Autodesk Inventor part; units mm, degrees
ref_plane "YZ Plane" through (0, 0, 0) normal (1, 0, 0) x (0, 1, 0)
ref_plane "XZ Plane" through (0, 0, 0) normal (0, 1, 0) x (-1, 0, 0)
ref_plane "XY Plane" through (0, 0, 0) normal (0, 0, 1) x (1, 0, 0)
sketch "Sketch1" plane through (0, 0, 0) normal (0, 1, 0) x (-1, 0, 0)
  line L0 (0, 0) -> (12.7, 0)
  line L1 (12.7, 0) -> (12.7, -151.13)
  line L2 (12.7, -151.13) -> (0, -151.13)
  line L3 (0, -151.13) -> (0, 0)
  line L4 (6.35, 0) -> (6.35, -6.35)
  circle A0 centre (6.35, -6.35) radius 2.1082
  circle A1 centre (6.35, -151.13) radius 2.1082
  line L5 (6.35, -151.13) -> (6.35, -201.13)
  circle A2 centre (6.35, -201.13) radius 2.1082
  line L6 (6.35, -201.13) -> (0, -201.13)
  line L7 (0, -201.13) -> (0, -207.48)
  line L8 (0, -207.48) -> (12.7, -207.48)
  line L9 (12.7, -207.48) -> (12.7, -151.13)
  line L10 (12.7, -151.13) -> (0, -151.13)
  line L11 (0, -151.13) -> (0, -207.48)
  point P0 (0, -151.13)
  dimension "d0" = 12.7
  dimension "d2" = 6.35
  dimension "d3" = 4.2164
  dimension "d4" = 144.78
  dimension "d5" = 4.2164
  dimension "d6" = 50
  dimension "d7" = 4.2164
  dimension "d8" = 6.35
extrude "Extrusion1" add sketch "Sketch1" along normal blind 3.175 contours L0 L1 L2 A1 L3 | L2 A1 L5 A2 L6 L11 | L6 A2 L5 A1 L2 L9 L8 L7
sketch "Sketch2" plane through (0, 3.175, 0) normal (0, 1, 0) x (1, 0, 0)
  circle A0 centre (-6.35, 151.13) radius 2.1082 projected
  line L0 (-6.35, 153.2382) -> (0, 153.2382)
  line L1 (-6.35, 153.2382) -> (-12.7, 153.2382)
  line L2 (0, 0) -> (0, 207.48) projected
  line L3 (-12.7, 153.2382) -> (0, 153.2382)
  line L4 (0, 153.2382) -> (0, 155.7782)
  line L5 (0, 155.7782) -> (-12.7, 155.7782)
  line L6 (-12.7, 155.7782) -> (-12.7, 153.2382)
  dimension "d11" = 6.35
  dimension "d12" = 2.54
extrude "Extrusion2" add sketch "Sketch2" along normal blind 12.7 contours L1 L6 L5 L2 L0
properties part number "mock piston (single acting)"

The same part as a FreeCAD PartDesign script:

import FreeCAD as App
import Part
import Sketcher
from FreeCAD import Vector
Q = App.Units.Quantity

doc = App.newDocument("Part")
params = doc.addObject("Spreadsheet::Sheet", "Params")
for row, (alias, value) in enumerate([
    ("sketch1_diameter", "0.166 in"),
    ("sketch1_width", "0.5 in"),
    ("pad1_length", "0.125 in"),
    ("sketch2_height", "0.1 in"),
    ("sketch2_width", "0.5 in"),
    ("pad2_length", "0.5 in"),
], start=1):
    params.set(f"A{row}", alias)
    params.set(f"B{row}", "=" + value)
    params.setAlias(f"B{row}", alias)

body = doc.addObject("PartDesign::Body", "Body")

sketch1 = doc.addObject("Sketcher::SketchObject", "Sketch")
body.addObject(sketch1)
sketch1.AttachmentSupport = (doc.XZ_Plane, [""])
sketch1.MapMode = "FlatFace"
sketch1.addGeometry([
    Part.LineSegment(Vector(-6.3, 0, 0), Vector(0, 0, 0)),
    Part.LineSegment(Vector(0, 0, 0), Vector(0, -207.5, 0)),
    Part.LineSegment(Vector(0, -207.5, 0), Vector(-12.7, -207.5, 0)),
    Part.LineSegment(Vector(-12.7, -207.5, 0), Vector(-12.7, 0, 0)),
    Part.LineSegment(Vector(-12.7, 0, 0), Vector(-6.3, 0, 0)),
    Part.Circle(Vector(-6.3, -151.1, 0), Vector(0, 0, 1), 2.1),
    Part.Circle(Vector(-6.3, -6.3, 0), Vector(0, 0, 1), 2.1),
    Part.Circle(Vector(-6.3, -201.1, 0), Vector(0, 0, 1), 2.1),
], False)
sketch1.addConstraint([
    Sketcher.Constraint("Coincident", 0, 2, 1, 1),
    Sketcher.Constraint("Coincident", 1, 2, 2, 1),
    Sketcher.Constraint("Coincident", 2, 2, 3, 1),
    Sketcher.Constraint("Coincident", 3, 2, 4, 1),
    Sketcher.Constraint("Coincident", 4, 2, 0, 1),
    Sketcher.Constraint("Horizontal", 0),
    Sketcher.Constraint("Vertical", 1),
    Sketcher.Constraint("Horizontal", 2),
    Sketcher.Constraint("Vertical", 3),
    Sketcher.Constraint("Horizontal", 4),
    Sketcher.Constraint("Coincident", 0, 2, -1, 1),
    Sketcher.Constraint("Equal", 5, 6),
    Sketcher.Constraint("Equal", 6, 7),
    Sketcher.Constraint("Vertical", 5, 3, 6, 3),
    Sketcher.Constraint("Vertical", 6, 3, 7, 3),
    Sketcher.Constraint("Vertical", 7, 3, 4, 2),
    Sketcher.Constraint("Equal", 0, 4),
    Sketcher.Constraint("Diameter", 5, Q("0.166 in")),
    Sketcher.Constraint("DistanceX", 2, 2, 2, 1, Q("0.5 in")),
    Sketcher.Constraint("DistanceY", 5, 3, 6, 3, Q("5.7 in")),
    Sketcher.Constraint("DistanceY", 6, 3, -1, 1, Q("0.25 in")),
    Sketcher.Constraint("DistanceY", 1, 2, 7, 3, Q("0.25 in")),
    Sketcher.Constraint("DistanceY", 7, 3, 5, 3, Q("1.9685 in")),
])
sketch1.setExpression("Constraints[17]", "Params.sketch1_diameter")
sketch1.setExpression("Constraints[18]", "Params.sketch1_width")
pad1 = doc.addObject("PartDesign::Pad", "Pad")
body.addObject(pad1)
pad1.Profile = sketch1
pad1.setExpression("Length", "Params.pad1_length")
pad1.Reversed = True

sketch2 = doc.addObject("Sketcher::SketchObject", "Sketch001")
body.addObject(sketch2)
sketch2.AttachmentSupport = (doc.XZ_Plane, [""])
sketch2.MapMode = "FlatFace"
sketch2.AttachmentOffset = App.Placement(Vector(0, 0, -0.125 * 25.4), App.Rotation())
sketch2.addGeometry([
    Part.LineSegment(Vector(-12.7, -153.2, 0), Vector(0, -153.2, 0)),
    Part.LineSegment(Vector(0, -153.2, 0), Vector(0, -155.8, 0)),
    Part.LineSegment(Vector(0, -155.8, 0), Vector(-12.7, -155.8, 0)),
    Part.LineSegment(Vector(-12.7, -155.8, 0), Vector(-12.7, -153.2, 0)),
], False)
sketch2.addConstraint([
    Sketcher.Constraint("Coincident", 0, 2, 1, 1),
    Sketcher.Constraint("Coincident", 1, 2, 2, 1),
    Sketcher.Constraint("Coincident", 2, 2, 3, 1),
    Sketcher.Constraint("Coincident", 3, 2, 0, 1),
    Sketcher.Constraint("Horizontal", 0),
    Sketcher.Constraint("Vertical", 1),
    Sketcher.Constraint("Horizontal", 2),
    Sketcher.Constraint("Vertical", 3),
    Sketcher.Constraint("PointOnObject", 0, 2, -2),
    Sketcher.Constraint("DistanceY", 1, 2, 1, 1, Q("0.1 in")),
    Sketcher.Constraint("DistanceX", 0, 1, 0, 2, Q("0.5 in")),
    Sketcher.Constraint("DistanceY", 0, 2, -1, 1, Q("6.033 in")),
])
sketch2.setExpression("Constraints[9]", "Params.sketch2_height")
sketch2.setExpression("Constraints[10]", "Params.sketch2_width")
pad2 = doc.addObject("PartDesign::Pad", "Pad001")
body.addObject(pad2)
pad2.Profile = sketch2
pad2.setExpression("Length", "Params.pad2_length")
pad2.Reversed = True

doc.recompute()
